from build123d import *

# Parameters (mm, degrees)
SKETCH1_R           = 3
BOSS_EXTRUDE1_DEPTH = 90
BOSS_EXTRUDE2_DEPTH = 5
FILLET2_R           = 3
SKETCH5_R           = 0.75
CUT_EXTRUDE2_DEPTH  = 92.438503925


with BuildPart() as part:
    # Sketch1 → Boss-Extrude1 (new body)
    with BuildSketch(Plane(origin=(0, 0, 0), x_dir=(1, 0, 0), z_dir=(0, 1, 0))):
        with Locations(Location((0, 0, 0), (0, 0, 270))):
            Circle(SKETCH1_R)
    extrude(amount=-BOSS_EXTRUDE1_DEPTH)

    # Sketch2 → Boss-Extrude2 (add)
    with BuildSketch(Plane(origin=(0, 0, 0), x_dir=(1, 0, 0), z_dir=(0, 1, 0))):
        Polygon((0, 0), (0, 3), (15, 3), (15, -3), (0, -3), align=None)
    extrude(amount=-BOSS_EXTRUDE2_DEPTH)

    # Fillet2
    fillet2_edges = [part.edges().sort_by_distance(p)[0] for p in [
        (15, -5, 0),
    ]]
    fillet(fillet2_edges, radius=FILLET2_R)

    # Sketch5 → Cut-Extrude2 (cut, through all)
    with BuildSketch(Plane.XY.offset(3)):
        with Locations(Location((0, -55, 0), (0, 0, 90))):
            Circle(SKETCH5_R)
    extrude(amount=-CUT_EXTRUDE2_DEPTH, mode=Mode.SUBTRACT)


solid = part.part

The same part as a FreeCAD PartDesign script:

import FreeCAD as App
import Part
import Sketcher
Q = App.Units.Quantity


def edges_at(feature, points):
    """Names of the edges that pass closest to the given points."""
    edges = feature.Shape.Edges
    near = lambda p: min(range(len(edges)), key=lambda i: edges[i].distToShape(Part.Vertex(*p))[0])
    return sorted({f"Edge{near(p) + 1}" for p in points})

doc = App.newDocument("Part")
body = doc.addObject("PartDesign::Body", "Body")

# Sketch on XZ plane
sketch1 = body.newObject("Sketcher::SketchObject", "Sketch")
sketch1.AttachmentSupport = (doc.getObject("XZ_Plane"), [""])
sketch1.MapMode = "FlatFace"
sketch1.addGeometry(Part.Circle(App.Vector(0, 0, 0), App.Vector(0, 0, 1), 3), False)
sketch1.addConstraint([
    Sketcher.Constraint("Coincident", 0, 3, -1, 1),
    Sketcher.Constraint("Diameter", 0, Q("6 mm")),
])
pad1 = body.newObject("PartDesign::Pad", "Pad")
pad1.Profile = sketch1
pad1.Length = 90

# Sketch on XZ plane
sketch2 = body.newObject("Sketcher::SketchObject", "Sketch001")
sketch2.AttachmentSupport = (doc.getObject("XZ_Plane"), [""])
sketch2.MapMode = "FlatFace"
sketch2.addGeometry([
    Part.LineSegment(App.Vector(0, -3, 0), App.Vector(0, 3, 0)),
    Part.LineSegment(App.Vector(0, 3, 0), App.Vector(15, 3, 0)),
    Part.LineSegment(App.Vector(15, 3, 0), App.Vector(15, -3, 0)),
    Part.LineSegment(App.Vector(15, -3, 0), App.Vector(0, -3, 0)),
], False)
sketch2.addConstraint([
    Sketcher.Constraint("Coincident", 0, 2, 1, 1),
    Sketcher.Constraint("Coincident", 1, 2, 2, 1),
    Sketcher.Constraint("Coincident", 2, 2, 3, 1),
    Sketcher.Constraint("Coincident", 3, 2, 0, 1),
    Sketcher.Constraint("Vertical", 0),
    Sketcher.Constraint("Horizontal", 1),
    Sketcher.Constraint("Vertical", 2),
    Sketcher.Constraint("Horizontal", 3),
    Sketcher.Constraint("Symmetric", 0, 2, 3, 2, -1, 1),
    Sketcher.Constraint("DistanceX", 1, 1, 1, 2, Q("15 mm")),
    Sketcher.Constraint("DistanceY", 0, 1, 0, 2, Q("6 mm")),
])
pad2 = body.newObject("PartDesign::Pad", "Pad001")
pad2.Profile = sketch2
pad2.Length = 5
doc.recompute()

fillet = body.newObject("PartDesign::Fillet", "Fillet")
fillet.Base = (pad2, edges_at(pad2, [(15, -5, 0)]))
fillet.Radius = 3

# Sketch on XY plane
sketch3 = body.newObject("Sketcher::SketchObject", "Sketch002")
sketch3.AttachmentSupport = (doc.getObject("XY_Plane"), [""])
sketch3.MapMode = "FlatFace"
sketch3.AttachmentOffset = App.Placement(App.Vector(0, 0, 3), App.Rotation())
sketch3.addGeometry(Part.Circle(App.Vector(0, -55, 0), App.Vector(0, 0, 1), 0.8), False)
sketch3.addConstraint([
    Sketcher.Constraint("PointOnObject", 0, 3, -2),
    Sketcher.Constraint("Diameter", 0, Q("1.5 mm")),
    Sketcher.Constraint("DistanceY", 0, 3, -1, 1, Q("55 mm")),
])
pocket1 = body.newObject("PartDesign::Pocket", "Pocket")
pocket1.Profile = sketch3
pocket1.Type = "ThroughAll"

doc.recompute()
